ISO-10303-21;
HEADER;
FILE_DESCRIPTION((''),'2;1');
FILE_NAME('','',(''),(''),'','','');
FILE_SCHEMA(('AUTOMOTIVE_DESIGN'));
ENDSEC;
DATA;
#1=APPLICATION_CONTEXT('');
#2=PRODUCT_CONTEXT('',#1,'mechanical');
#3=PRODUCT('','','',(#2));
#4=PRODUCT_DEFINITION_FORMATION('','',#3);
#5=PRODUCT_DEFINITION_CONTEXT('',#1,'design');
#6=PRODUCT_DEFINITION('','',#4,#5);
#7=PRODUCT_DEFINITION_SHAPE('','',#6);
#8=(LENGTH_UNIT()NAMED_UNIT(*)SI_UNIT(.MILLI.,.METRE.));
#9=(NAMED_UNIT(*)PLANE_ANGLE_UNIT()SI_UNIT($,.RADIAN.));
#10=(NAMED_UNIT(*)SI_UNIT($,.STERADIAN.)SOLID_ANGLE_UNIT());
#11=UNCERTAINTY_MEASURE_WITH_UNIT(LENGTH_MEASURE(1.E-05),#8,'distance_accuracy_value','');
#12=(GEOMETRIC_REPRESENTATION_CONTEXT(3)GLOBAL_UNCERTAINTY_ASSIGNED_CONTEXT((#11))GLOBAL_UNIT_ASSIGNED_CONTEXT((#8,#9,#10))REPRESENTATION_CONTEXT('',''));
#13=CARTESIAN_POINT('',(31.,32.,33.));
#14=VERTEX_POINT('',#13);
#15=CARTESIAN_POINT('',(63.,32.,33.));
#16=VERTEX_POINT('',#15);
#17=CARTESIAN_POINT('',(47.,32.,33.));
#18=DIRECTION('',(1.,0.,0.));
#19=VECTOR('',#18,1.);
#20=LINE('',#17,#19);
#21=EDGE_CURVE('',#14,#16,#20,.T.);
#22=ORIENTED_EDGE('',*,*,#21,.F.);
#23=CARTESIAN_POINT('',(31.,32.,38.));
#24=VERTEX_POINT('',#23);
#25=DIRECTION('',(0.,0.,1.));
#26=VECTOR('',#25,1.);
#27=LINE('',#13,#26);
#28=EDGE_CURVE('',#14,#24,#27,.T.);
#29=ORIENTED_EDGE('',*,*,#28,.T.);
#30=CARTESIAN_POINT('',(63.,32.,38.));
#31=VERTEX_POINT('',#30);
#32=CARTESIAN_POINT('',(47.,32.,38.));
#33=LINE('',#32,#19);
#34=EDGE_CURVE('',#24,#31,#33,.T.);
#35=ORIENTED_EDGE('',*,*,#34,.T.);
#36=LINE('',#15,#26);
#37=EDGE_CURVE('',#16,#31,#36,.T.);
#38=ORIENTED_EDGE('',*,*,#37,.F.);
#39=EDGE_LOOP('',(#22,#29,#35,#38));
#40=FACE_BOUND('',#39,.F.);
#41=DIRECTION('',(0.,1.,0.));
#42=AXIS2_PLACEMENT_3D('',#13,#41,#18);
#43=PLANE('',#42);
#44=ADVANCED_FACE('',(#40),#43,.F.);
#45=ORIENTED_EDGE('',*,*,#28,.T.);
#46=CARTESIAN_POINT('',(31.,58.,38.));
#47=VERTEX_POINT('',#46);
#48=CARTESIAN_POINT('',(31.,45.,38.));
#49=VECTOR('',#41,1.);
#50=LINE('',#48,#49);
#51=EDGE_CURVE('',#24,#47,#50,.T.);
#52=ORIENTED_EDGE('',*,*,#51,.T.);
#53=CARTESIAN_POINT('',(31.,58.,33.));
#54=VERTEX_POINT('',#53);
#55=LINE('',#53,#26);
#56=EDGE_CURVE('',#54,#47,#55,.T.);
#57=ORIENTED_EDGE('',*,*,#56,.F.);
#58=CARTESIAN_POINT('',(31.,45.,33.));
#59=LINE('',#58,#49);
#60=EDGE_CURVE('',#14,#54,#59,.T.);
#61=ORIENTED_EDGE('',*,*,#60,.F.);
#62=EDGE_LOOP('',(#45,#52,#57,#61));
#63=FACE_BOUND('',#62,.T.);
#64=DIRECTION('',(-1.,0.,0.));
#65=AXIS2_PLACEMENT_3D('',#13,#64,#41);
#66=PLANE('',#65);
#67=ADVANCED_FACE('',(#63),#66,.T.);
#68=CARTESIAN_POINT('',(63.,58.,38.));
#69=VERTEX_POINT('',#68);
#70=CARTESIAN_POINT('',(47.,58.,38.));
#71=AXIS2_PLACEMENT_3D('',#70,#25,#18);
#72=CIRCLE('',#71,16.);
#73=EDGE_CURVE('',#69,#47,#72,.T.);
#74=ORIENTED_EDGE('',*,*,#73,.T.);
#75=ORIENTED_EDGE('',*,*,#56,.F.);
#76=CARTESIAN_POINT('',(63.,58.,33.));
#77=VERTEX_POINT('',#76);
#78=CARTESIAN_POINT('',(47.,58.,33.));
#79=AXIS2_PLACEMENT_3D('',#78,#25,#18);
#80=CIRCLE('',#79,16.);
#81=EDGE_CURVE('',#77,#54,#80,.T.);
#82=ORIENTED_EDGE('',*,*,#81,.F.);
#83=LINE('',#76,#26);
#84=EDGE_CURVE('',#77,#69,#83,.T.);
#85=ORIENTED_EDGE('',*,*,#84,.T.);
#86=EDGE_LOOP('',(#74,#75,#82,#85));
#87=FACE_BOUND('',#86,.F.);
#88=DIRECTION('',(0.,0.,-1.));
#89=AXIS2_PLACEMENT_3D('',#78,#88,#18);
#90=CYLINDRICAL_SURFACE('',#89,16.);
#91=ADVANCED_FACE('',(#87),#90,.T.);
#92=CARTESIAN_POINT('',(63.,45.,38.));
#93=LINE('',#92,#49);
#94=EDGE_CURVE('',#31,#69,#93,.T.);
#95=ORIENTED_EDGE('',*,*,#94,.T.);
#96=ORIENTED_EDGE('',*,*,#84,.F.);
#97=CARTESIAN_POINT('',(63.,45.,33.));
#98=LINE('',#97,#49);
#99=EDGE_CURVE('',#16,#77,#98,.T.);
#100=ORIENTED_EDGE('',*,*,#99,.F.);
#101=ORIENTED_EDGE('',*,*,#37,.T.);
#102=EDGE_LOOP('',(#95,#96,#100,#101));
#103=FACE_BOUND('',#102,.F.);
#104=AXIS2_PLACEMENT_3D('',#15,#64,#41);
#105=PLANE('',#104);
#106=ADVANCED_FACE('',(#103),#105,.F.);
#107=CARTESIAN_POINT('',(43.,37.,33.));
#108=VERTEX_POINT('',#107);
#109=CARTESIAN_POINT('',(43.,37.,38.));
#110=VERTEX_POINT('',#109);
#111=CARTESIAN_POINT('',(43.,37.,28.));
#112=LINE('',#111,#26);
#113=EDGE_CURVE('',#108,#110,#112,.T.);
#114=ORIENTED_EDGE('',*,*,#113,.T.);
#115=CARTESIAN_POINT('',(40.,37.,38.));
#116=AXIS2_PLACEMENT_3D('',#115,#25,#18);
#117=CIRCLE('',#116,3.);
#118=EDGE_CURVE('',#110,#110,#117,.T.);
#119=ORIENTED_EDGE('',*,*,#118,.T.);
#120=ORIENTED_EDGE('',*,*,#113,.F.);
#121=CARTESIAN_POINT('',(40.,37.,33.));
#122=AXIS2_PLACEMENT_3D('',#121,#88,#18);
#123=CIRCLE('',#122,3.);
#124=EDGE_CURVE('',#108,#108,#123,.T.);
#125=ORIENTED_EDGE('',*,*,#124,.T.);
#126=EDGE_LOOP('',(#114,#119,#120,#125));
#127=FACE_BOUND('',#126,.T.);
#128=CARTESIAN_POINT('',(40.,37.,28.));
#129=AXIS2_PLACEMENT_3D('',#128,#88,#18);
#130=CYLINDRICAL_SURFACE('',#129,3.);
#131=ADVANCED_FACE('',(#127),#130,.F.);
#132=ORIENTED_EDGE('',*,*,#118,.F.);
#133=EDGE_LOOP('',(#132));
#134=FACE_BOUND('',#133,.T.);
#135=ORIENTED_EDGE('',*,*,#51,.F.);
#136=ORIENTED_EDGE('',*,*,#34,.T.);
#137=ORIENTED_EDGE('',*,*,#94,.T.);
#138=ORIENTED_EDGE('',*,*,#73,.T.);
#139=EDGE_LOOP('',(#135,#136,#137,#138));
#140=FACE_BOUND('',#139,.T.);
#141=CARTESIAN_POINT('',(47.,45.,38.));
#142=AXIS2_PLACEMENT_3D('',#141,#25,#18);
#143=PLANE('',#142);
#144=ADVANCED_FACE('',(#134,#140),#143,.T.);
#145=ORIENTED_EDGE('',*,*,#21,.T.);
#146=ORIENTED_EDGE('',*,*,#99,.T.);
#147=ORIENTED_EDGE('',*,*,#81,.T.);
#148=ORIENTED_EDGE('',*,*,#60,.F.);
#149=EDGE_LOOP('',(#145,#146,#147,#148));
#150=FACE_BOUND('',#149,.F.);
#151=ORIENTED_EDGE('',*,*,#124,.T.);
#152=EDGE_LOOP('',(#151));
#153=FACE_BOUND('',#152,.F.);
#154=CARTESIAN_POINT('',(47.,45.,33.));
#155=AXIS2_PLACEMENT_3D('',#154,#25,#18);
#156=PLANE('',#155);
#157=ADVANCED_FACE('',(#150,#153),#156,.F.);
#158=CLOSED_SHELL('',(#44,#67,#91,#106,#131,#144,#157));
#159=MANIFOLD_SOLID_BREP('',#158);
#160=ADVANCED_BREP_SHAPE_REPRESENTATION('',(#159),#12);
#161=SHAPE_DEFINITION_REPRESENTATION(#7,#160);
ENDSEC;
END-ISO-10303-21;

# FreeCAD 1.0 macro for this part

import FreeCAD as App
import Part
import Sketcher

doc = App.newDocument("Part")
body = doc.addObject("PartDesign::Body", "Body")

sketch1 = body.newObject("Sketcher::SketchObject", "Sketch")
sketch1.AttachmentSupport = (doc.getObject("XY_Plane"), [""])
sketch1.MapMode = "FlatFace"
sketch1.AttachmentOffset = App.Placement(App.Vector(0, 0, 28), App.Rotation())
sketch1.addGeometry(Part.Circle(App.Vector(40, 37, 0), App.Vector(0, 0, 1), 3), False)
sketch1.addConstraint([
    Sketcher.Constraint("Diameter", 0, 6.0),
    Sketcher.Constraint("DistanceX", -1, 1, 0, 3, 40.0),
    Sketcher.Constraint("DistanceY", -1, 1, 0, 3, 37.0),
])
pad1 = body.newObject("PartDesign::Pad", "Pad")
pad1.Profile = sketch1
pad1.Length = 10
body2 = doc.addObject("PartDesign::Body", "Body001")

sketch2 = body2.newObject("Sketcher::SketchObject", "Sketch001")
sketch2.AttachmentSupport = (doc.getObject("XY_Plane001"), [""])
sketch2.MapMode = "FlatFace"
sketch2.AttachmentOffset = App.Placement(App.Vector(0, 0, 30), App.Rotation())
sketch2.addGeometry([
    Part.LineSegment(App.Vector(3, 18, 0), App.Vector(3, -8, 0)),
    Part.LineSegment(App.Vector(3, -8, 0), App.Vector(35, -8, 0)),
    Part.LineSegment(App.Vector(35, -8, 0), App.Vector(35, 18, 0)),
    Part.LineSegment(App.Vector(35, 18, 0), App.Vector(3, 18, 0)),
], False)
sketch2.addConstraint([
    Sketcher.Constraint("Coincident", 0, 2, 1, 1),
    Sketcher.Constraint("Coincident", 1, 2, 2, 1),
    Sketcher.Constraint("Coincident", 2, 2, 3, 1),
    Sketcher.Constraint("Coincident", 3, 2, 0, 1),
    Sketcher.Constraint("Vertical", 0),
    Sketcher.Constraint("Horizontal", 1),
    Sketcher.Constraint("Vertical", 2),
    Sketcher.Constraint("Horizontal", 3),
    Sketcher.Constraint("DistanceX", 1, 1, 1, 2, 32.0),
    Sketcher.Constraint("DistanceY", 0, 2, 0, 1, 26.0),
    Sketcher.Constraint("DistanceX", -1, 1, 0, 2, 3.0),
    Sketcher.Constraint("DistanceY", 0, 2, -1, 1, 8.0),
])
pad2 = body2.newObject("PartDesign::Pad", "Pad001")
pad2.Profile = sketch2
pad2.Length = 5
body3 = doc.addObject("PartDesign::Body", "Body002")

sketch3 = body3.newObject("Sketcher::SketchObject", "Sketch002")
sketch3.AttachmentSupport = (doc.getObject("XY_Plane002"), [""])
sketch3.MapMode = "FlatFace"
sketch3.AttachmentOffset = App.Placement(App.Vector(0, 0, 30), App.Rotation())
sketch3.addGeometry(Part.Circle(App.Vector(19, 18, 0), App.Vector(0, 0, 1), 16), False)
sketch3.addConstraint([
    Sketcher.Constraint("Diameter", 0, 32.0),
    Sketcher.Constraint("DistanceX", -1, 1, 0, 3, 19.0),
    Sketcher.Constraint("DistanceY", -1, 1, 0, 3, 18.0),
])
pad3 = body3.newObject("PartDesign::Pad", "Pad002")
pad3.Profile = sketch3
pad3.Length = 5
doc.recompute()

boolean = body3.newObject("PartDesign::Boolean", "Boolean")
boolean.Type = "Fuse"
boolean.addObjects([body2])
body4 = doc.addObject("PartDesign::Body", "Body003")
doc.recompute()

body3.Placement = App.Placement(App.Vector(28, 40, 3), App.Rotation(App.Vector(0, 0, 1), 0))
boolean2 = body4.newObject("PartDesign::Boolean", "Boolean001")
boolean2.Type = "Fuse"
boolean2.addObjects([body3])
doc.recompute()

boolean3 = body4.newObject("PartDesign::Boolean", "Boolean002")
boolean3.Type = "Cut"
boolean3.addObjects([body])

doc.recompute()
